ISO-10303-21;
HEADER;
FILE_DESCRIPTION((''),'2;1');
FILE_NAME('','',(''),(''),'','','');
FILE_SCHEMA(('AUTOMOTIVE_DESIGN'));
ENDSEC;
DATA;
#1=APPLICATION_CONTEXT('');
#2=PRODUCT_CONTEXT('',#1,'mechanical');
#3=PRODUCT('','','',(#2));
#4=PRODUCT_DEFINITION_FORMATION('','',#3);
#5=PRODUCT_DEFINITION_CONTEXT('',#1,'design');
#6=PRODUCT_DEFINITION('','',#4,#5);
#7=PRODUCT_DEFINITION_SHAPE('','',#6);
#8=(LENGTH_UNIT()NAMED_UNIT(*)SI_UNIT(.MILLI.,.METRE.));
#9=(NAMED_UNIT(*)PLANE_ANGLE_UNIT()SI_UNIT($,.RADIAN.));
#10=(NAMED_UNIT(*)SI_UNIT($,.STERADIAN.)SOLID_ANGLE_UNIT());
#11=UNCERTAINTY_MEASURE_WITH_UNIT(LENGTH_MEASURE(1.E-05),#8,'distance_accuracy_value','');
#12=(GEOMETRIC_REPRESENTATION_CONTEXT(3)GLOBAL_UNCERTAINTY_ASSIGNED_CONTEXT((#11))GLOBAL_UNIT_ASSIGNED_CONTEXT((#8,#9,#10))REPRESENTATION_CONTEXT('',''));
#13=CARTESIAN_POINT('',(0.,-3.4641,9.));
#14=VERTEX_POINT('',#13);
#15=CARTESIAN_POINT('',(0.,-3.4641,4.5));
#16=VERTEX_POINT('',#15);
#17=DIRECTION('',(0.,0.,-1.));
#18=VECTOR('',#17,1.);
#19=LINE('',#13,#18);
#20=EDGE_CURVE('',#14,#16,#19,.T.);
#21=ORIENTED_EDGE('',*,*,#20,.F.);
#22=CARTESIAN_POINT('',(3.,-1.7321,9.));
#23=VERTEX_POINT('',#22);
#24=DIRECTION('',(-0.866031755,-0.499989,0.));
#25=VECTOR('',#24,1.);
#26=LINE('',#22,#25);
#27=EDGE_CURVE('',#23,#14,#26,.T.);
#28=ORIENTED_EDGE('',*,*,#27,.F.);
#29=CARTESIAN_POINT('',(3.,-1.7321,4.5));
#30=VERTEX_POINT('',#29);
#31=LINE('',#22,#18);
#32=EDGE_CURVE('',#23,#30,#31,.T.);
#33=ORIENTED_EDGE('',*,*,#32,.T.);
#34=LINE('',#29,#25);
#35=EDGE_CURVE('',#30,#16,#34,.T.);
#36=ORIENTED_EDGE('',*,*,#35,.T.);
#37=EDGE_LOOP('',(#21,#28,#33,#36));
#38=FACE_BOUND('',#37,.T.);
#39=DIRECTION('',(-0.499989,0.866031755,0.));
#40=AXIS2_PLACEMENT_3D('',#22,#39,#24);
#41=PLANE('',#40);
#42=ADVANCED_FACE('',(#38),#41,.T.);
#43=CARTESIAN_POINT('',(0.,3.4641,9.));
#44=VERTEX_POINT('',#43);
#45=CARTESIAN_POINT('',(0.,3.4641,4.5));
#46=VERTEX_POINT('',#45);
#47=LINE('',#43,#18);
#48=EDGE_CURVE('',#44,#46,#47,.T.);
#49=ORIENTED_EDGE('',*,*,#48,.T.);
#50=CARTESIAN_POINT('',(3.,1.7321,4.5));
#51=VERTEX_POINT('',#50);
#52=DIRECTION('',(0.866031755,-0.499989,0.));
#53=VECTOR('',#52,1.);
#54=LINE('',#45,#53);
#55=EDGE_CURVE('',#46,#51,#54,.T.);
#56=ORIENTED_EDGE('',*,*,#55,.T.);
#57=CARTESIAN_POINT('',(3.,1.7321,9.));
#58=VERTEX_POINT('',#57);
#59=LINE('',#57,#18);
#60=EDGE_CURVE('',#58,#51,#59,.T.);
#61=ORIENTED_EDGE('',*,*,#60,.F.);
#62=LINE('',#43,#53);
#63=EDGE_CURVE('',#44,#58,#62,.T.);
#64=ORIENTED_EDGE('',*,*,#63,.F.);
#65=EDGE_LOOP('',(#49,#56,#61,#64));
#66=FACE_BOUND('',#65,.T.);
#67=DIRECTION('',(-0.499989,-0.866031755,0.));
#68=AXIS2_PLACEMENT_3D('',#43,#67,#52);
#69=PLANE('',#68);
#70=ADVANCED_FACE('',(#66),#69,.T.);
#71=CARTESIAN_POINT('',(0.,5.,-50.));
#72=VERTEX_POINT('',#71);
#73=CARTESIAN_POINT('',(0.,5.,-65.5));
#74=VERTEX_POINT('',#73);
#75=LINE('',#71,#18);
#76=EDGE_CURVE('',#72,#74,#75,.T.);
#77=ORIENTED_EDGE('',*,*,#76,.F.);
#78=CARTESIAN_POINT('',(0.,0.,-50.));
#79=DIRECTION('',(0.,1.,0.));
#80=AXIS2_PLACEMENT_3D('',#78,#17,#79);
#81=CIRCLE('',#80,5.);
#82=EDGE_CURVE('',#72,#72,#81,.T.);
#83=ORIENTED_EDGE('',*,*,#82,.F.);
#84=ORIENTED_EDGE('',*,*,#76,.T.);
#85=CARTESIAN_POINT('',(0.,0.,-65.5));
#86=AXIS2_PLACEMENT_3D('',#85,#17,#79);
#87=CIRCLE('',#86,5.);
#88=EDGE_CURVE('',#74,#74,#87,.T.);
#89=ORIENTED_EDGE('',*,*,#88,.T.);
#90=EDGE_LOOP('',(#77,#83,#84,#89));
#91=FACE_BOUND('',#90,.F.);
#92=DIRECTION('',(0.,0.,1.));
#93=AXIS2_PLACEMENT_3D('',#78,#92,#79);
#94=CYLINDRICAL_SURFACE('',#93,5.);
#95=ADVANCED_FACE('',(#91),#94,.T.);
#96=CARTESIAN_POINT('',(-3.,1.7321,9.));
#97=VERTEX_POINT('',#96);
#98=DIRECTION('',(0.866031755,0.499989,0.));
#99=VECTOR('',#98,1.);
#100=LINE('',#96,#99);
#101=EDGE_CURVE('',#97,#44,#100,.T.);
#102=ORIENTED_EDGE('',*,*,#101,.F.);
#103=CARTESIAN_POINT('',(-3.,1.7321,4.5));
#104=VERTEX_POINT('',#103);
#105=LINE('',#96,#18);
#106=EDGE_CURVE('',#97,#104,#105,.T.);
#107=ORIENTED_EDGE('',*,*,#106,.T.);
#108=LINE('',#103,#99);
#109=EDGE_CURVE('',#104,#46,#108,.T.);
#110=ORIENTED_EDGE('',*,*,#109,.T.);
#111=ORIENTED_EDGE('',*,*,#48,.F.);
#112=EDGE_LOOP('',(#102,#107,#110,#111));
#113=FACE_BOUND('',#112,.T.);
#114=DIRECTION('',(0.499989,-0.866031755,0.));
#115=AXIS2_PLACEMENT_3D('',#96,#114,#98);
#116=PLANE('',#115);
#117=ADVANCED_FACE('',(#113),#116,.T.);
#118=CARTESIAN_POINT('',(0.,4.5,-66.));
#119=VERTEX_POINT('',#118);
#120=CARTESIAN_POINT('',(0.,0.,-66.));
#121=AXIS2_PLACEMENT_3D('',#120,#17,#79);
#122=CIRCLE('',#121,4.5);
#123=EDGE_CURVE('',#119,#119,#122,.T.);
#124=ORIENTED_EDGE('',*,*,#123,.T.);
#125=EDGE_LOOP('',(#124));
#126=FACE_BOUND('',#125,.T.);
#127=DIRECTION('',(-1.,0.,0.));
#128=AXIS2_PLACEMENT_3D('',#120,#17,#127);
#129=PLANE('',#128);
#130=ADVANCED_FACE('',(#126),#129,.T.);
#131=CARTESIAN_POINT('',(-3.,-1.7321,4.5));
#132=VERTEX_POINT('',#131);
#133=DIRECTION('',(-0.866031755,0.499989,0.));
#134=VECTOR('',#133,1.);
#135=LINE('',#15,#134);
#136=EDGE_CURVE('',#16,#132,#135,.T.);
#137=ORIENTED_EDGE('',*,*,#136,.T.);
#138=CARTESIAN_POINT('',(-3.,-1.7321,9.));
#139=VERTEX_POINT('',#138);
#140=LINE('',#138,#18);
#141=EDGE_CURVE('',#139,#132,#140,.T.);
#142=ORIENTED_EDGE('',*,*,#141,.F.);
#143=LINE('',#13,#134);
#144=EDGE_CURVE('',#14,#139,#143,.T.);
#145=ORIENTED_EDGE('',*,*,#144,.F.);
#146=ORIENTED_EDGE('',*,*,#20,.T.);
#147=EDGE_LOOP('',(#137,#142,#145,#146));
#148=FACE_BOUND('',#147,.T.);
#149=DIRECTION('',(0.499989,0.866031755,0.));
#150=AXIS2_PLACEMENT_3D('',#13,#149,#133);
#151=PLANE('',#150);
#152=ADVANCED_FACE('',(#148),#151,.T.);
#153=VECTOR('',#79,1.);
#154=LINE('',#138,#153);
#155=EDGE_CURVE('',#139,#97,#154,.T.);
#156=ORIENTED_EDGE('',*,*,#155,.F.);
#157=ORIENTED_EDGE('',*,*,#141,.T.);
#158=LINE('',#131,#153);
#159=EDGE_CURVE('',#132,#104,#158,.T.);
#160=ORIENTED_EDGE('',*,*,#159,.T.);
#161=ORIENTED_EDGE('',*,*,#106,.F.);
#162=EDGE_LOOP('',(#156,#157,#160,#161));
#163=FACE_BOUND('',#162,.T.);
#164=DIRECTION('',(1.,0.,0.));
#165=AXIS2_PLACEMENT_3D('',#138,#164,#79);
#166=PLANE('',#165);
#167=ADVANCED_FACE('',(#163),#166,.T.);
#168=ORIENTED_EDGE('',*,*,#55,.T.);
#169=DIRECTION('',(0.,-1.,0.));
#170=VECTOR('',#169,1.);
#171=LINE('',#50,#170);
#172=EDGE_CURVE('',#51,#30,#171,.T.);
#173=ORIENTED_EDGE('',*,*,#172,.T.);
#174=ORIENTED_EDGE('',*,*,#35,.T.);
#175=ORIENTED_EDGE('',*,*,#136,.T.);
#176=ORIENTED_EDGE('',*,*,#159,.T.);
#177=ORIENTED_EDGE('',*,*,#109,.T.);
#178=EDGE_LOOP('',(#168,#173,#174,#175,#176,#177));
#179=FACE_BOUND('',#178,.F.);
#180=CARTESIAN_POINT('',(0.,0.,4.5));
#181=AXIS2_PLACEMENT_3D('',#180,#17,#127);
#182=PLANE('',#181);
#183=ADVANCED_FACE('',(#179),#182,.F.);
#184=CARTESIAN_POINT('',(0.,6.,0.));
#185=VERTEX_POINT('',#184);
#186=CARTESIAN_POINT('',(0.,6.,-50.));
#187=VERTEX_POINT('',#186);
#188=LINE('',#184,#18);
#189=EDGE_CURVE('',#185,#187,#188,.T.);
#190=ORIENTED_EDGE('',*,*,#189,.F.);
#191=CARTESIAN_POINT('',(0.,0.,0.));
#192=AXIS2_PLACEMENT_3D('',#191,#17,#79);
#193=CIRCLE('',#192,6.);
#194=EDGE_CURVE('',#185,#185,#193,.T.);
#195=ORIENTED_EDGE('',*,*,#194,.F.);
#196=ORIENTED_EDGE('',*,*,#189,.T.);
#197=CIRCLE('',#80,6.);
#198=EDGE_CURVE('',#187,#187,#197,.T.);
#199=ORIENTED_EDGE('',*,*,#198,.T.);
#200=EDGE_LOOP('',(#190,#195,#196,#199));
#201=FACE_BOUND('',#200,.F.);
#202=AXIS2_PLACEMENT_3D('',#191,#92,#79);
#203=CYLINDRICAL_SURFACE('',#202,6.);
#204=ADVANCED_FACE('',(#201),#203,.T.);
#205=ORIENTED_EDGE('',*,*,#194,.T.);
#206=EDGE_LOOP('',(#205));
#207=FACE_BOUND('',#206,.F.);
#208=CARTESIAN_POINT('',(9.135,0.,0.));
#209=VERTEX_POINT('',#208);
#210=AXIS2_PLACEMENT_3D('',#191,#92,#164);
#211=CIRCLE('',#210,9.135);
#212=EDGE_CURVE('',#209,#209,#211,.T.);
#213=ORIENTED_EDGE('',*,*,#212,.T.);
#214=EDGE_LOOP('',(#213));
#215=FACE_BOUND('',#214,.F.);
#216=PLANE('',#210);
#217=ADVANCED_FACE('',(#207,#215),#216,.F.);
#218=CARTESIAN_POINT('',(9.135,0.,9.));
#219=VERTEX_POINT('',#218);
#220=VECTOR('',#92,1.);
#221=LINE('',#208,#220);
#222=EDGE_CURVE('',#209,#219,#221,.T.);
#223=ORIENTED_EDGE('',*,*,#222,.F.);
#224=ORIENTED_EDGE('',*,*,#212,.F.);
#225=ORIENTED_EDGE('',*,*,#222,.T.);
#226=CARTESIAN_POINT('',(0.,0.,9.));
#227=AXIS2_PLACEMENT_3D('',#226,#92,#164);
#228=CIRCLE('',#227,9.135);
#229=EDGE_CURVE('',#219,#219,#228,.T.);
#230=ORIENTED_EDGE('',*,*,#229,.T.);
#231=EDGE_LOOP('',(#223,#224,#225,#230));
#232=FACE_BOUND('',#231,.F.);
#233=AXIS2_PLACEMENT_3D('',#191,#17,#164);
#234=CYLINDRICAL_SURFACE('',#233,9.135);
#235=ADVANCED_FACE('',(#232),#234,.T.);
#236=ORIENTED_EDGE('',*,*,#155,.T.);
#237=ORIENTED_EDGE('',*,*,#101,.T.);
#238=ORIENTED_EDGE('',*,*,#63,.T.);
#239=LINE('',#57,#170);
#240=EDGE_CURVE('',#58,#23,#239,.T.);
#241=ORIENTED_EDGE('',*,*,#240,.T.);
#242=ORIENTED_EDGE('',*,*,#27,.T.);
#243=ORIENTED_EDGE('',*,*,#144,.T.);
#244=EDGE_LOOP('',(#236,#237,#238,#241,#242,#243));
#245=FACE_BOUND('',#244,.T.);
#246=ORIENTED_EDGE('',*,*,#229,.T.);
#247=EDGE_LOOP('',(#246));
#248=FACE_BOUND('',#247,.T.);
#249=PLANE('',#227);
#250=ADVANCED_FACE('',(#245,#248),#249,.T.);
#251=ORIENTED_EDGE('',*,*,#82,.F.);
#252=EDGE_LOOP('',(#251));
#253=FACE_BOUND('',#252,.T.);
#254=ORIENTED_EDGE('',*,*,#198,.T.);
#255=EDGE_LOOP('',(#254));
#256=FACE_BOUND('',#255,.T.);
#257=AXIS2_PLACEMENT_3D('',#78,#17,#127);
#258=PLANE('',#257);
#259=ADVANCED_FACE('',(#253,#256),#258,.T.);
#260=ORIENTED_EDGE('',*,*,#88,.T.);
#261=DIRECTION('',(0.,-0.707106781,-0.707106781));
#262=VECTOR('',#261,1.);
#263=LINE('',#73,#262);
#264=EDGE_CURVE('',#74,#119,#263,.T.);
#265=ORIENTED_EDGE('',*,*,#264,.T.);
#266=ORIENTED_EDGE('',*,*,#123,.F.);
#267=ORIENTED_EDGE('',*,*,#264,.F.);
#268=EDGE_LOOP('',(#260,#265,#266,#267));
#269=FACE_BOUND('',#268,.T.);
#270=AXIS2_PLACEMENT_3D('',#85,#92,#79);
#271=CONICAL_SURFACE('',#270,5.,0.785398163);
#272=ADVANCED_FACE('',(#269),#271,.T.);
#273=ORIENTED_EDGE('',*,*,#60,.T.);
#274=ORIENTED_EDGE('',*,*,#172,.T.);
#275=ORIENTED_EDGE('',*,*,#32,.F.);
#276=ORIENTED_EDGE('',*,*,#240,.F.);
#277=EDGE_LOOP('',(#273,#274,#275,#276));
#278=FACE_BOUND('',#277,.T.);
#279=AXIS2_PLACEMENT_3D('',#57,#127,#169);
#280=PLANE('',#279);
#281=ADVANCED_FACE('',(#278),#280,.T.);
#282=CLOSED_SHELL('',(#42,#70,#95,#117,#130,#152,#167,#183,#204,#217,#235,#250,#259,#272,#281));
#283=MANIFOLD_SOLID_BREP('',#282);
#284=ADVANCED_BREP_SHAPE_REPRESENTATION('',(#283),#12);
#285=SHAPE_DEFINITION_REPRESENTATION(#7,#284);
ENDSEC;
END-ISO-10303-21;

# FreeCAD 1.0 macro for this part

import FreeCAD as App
import Part
import Sketcher
from FreeCAD import Vector
Q = App.Units.Quantity


def edges_at(feature, points):
    """Names of the edges that pass closest to the given points."""
    edges = feature.Shape.Edges
    near = lambda p: min(range(len(edges)), key=lambda i: edges[i].distToShape(Part.Vertex(*p))[0])
    return sorted({f"Edge{near(p) + 1}" for p in points})


def add_polygon(sketch, points):
    """Adds a closed chain of lines whose ends are joined by coincident constraints."""
    first, n = sketch.GeometryCount, len(points)
    for a, b in zip(points, points[1:] + points[:1]):
        sketch.addGeometry(Part.LineSegment(App.Vector(*a, 0), App.Vector(*b, 0)), False)
    for i in range(n):
        sketch.addConstraint(Sketcher.Constraint("Coincident", first + i, 2, first + (i + 1) % n, 1))

doc = App.newDocument("Part")
body = doc.addObject("PartDesign::Body", "Body")

# Sketch on XY plane
sketch1 = body.newObject("Sketcher::SketchObject", "Sketch")
sketch1.AttachmentSupport = (doc.getObject("XY_Plane"), [""])
sketch1.MapMode = "FlatFace"
sketch1.addGeometry(Part.Circle(Vector(0, 0, 0), Vector(0, 0, 1), 9.135), False)
sketch1.addConstraint([
    Sketcher.Constraint("Coincident", 0, 3, -1, 1),
    Sketcher.Constraint("Diameter", 0, 18.27),
])
pad1 = body.newObject("PartDesign::Pad", "Pad")
pad1.Profile = sketch1
pad1.Length = 9

# Sketch on XY plane
sketch2 = body.newObject("Sketcher::SketchObject", "Sketch001")
sketch2.AttachmentSupport = (doc.getObject("XY_Plane"), [""])
sketch2.MapMode = "FlatFace"
sketch2.AttachmentOffset = App.Placement(Vector(0, 0, 9), App.Rotation())
add_polygon(sketch2, [(-3, -1.7321), (0, -3.4641), (3, -1.7321), (3, 1.7321), (0, 3.4641), (-3, 1.7321)])  # lines 0-5
sketch2.addConstraint([
    Sketcher.Constraint("Vertical", 2),
    Sketcher.Constraint("Vertical", 5),
    Sketcher.Constraint("Symmetric", 0, 2, 3, 2, -1, 1),
    Sketcher.Constraint("Symmetric", 1, 2, 4, 2, -1, 1),
    Sketcher.Constraint("PointOnObject", 0, 2, -2),
    Sketcher.Constraint("Parallel", 0, 3),
    Sketcher.Constraint("Horizontal", 2, 2, 4, 2),
    Sketcher.Constraint("Angle", 0, Q("-29.9993 deg")),
    Sketcher.Constraint("DistanceX", -1, 1, 1, 2, 3.0),
    Sketcher.Constraint("DistanceY", 2, 1, 2, 2, 3.4642),
])
pocket1 = body.newObject("PartDesign::Pocket", "Pocket")
pocket1.Profile = sketch2
pocket1.Length = 4.5

# Sketch on XY plane
sketch3 = body.newObject("Sketcher::SketchObject", "Sketch002")
sketch3.AttachmentSupport = (doc.getObject("XY_Plane"), [""])
sketch3.MapMode = "FlatFace"
sketch3.addGeometry(Part.Circle(Vector(0, 0, 0), Vector(0, 0, 1), 6), False)
sketch3.addConstraint([
    Sketcher.Constraint("Coincident", 0, 3, -1, 1),
    Sketcher.Constraint("Diameter", 0, 12.0),
])
pad2 = body.newObject("PartDesign::Pad", "Pad001")
pad2.Profile = sketch3
pad2.Length = 50
pad2.Reversed = True

# Sketch on XY plane
sketch4 = body.newObject("Sketcher::SketchObject", "Sketch003")
sketch4.AttachmentSupport = (doc.getObject("XY_Plane"), [""])
sketch4.MapMode = "FlatFace"
sketch4.AttachmentOffset = App.Placement(Vector(0, 0, -50), App.Rotation())
sketch4.addGeometry(Part.Circle(Vector(0, 0, 0), Vector(0, 0, 1), 5), False)
sketch4.addConstraint([
    Sketcher.Constraint("Coincident", 0, 3, -1, 1),
    Sketcher.Constraint("Diameter", 0, 10.0),
])
pad3 = body.newObject("PartDesign::Pad", "Pad002")
pad3.Profile = sketch4
pad3.Length = 16
pad3.Reversed = True
doc.recompute()

chamfer = body.newObject("PartDesign::Chamfer", "Chamfer")
chamfer.Base = (pad3, edges_at(pad3, [(0, -5, -66)]))
chamfer.Size = 0.5

doc.recompute()
